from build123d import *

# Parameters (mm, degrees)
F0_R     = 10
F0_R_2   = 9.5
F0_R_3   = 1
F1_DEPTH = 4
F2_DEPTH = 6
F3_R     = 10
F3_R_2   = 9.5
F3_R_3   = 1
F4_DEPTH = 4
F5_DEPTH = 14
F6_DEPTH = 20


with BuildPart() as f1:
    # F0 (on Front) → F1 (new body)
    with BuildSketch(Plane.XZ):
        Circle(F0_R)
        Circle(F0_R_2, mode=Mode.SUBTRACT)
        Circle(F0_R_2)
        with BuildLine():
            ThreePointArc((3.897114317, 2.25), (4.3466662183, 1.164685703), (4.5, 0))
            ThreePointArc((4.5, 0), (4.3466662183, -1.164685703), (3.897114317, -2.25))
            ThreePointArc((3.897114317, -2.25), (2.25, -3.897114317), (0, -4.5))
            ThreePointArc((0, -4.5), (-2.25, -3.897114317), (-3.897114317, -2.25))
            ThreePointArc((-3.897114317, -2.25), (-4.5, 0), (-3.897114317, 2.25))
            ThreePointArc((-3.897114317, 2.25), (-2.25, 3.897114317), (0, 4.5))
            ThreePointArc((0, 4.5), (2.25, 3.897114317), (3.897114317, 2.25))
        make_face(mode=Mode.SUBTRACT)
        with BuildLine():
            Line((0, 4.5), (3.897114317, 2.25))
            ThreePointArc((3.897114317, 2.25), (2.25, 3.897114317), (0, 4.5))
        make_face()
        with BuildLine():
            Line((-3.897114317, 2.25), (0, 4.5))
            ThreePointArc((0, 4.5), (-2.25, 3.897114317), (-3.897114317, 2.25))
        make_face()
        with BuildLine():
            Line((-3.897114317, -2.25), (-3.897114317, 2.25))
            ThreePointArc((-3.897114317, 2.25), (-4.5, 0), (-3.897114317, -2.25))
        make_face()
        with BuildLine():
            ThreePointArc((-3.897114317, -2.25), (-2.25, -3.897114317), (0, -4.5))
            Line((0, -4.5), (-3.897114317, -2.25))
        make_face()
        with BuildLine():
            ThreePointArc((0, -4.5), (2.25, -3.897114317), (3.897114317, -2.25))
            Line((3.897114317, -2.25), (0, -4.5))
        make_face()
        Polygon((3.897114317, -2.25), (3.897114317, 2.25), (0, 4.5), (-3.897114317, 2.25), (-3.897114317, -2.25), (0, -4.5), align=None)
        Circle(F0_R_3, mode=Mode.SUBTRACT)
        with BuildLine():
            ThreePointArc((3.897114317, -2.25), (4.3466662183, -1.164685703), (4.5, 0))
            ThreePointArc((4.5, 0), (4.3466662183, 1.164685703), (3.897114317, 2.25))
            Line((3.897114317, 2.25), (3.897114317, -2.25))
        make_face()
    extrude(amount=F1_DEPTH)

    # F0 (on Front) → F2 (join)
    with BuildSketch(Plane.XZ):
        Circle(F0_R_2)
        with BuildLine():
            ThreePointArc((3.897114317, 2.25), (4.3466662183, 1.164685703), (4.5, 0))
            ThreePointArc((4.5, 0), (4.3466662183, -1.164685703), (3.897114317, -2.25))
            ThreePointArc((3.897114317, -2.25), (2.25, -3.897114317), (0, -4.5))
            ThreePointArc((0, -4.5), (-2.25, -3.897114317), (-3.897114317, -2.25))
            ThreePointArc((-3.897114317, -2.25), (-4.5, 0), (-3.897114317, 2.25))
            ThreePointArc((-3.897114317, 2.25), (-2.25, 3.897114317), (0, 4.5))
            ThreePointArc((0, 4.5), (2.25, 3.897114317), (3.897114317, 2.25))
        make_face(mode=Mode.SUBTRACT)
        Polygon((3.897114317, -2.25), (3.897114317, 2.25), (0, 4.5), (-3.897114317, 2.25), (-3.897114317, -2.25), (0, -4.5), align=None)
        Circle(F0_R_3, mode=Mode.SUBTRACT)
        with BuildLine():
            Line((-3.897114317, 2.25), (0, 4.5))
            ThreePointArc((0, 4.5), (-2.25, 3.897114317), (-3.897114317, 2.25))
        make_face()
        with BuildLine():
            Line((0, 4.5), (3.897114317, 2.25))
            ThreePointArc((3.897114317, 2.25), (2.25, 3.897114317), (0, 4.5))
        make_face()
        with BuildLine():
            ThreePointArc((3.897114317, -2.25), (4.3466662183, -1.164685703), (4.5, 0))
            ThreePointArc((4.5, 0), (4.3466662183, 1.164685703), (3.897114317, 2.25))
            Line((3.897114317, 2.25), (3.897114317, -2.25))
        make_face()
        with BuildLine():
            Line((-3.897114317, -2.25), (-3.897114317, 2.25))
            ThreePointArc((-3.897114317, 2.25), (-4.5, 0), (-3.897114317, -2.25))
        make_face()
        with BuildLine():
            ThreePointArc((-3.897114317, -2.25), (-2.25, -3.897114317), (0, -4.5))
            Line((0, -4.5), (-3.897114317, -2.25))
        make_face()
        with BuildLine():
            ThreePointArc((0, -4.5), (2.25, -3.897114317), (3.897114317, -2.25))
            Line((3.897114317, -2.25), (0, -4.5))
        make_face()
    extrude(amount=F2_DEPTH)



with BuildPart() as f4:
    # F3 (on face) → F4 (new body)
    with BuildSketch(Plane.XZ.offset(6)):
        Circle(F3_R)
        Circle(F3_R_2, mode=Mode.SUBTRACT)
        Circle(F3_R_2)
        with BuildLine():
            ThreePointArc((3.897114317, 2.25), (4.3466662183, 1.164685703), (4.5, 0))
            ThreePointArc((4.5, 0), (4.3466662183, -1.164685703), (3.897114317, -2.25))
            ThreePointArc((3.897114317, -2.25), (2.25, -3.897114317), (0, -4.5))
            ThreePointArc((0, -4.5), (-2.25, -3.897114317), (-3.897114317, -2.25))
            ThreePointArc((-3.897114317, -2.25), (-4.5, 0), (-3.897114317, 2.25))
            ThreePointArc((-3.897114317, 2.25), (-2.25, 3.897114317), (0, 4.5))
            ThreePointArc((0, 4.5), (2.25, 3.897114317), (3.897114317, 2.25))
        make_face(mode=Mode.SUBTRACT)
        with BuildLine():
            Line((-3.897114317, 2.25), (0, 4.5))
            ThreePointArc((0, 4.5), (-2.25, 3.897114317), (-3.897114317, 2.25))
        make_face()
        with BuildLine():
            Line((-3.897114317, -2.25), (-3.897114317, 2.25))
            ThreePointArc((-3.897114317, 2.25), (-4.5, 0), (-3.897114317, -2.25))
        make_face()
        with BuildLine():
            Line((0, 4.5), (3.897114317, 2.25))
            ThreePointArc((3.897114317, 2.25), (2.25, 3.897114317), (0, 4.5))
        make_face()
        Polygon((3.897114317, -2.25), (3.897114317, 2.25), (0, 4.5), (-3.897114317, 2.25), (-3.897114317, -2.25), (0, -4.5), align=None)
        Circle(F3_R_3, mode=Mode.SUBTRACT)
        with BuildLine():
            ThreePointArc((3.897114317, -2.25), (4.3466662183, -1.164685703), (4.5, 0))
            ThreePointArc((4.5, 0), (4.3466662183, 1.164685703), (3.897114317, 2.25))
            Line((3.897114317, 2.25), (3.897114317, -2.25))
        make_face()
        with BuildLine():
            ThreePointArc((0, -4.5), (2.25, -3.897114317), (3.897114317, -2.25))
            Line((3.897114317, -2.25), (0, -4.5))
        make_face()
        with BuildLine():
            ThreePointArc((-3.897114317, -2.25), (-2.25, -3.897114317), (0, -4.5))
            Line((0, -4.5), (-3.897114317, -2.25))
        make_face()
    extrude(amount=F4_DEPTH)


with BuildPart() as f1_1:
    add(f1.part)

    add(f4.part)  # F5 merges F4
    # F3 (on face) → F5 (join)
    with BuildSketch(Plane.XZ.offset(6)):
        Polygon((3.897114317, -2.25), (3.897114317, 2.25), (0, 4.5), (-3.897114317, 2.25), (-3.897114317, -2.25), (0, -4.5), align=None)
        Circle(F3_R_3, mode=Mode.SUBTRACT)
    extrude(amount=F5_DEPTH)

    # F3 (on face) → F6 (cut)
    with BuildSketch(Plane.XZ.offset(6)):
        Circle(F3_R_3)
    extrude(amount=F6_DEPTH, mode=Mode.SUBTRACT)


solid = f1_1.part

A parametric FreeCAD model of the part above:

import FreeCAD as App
import Part
import Sketcher
from FreeCAD import Vector
Q = App.Units.Quantity

doc = App.newDocument("Part")
params = doc.addObject("Spreadsheet::Sheet", "Params")
for row, (alias, value) in enumerate([
    ("sketch1_diameter", "20 mm"),
    ("sketch1_diameter2", "2 mm"),
    ("pad1_length", "4 mm"),
    ("sketch2_diameter", "19 mm"),
    ("sketch2_diameter2", "2 mm"),
    ("pad2_length", "6 mm"),
    ("sketch3_diameter", "20 mm"),
    ("sketch3_diameter2", "2 mm"),
    ("pad3_length", "4 mm"),
    ("sketch4_diameter", "2 mm"),
    ("sketch4_height", "4.5 mm"),
    ("pad4_length", "14 mm"),
    ("sketch5_diameter", "2 mm"),
    ("pocket1_length", "20 mm"),
], start=1):
    params.set(f"A{row}", alias)
    params.set(f"B{row}", "=" + value)
    params.setAlias(f"B{row}", alias)

body = doc.addObject("PartDesign::Body", "Body")

# Sketch on XZ plane
sketch1 = doc.addObject("Sketcher::SketchObject", "Sketch")
body.addObject(sketch1)
sketch1.AttachmentSupport = (doc.XZ_Plane, [""])
sketch1.MapMode = "FlatFace"
sketch1.addGeometry([
    Part.Circle(Vector(0, 0, 0), Vector(0, 0, 1), 10),
    Part.Circle(Vector(0, 0, 0), Vector(0, 0, 1), 1),
], False)
sketch1.addConstraint([
    Sketcher.Constraint("Coincident", 0, 3, -1, 1),
    Sketcher.Constraint("Coincident", 1, 3, -1, 1),
    Sketcher.Constraint("Diameter", 0, 20.0),
    Sketcher.Constraint("Diameter", 1, 2.0),
])
sketch1.setExpression("Constraints[2]", "Params.sketch1_diameter")
sketch1.setExpression("Constraints[3]", "Params.sketch1_diameter2")
pad1 = doc.addObject("PartDesign::Pad", "Pad")
body.addObject(pad1)
pad1.Profile = sketch1
pad1.setExpression("Length", "Params.pad1_length")

# Sketch on XZ plane
sketch2 = doc.addObject("Sketcher::SketchObject", "Sketch001")
body.addObject(sketch2)
sketch2.AttachmentSupport = (doc.XZ_Plane, [""])
sketch2.MapMode = "FlatFace"
sketch2.addGeometry([
    Part.Circle(Vector(0, 0, 0), Vector(0, 0, 1), 9.5),
    Part.Circle(Vector(0, 0, 0), Vector(0, 0, 1), 1),
], False)
sketch2.addConstraint([
    Sketcher.Constraint("Coincident", 0, 3, -1, 1),
    Sketcher.Constraint("Coincident", 1, 3, -1, 1),
    Sketcher.Constraint("Diameter", 0, 19.0),
    Sketcher.Constraint("Diameter", 1, 2.0),
])
sketch2.setExpression("Constraints[2]", "Params.sketch2_diameter")
sketch2.setExpression("Constraints[3]", "Params.sketch2_diameter2")
pad2 = doc.addObject("PartDesign::Pad", "Pad001")
body.addObject(pad2)
pad2.Profile = sketch2
pad2.setExpression("Length", "Params.pad2_length")
body2 = doc.addObject("PartDesign::Body", "Body001")

# Sketch on XZ plane
sketch3 = doc.addObject("Sketcher::SketchObject", "Sketch002")
body2.addObject(sketch3)
sketch3.AttachmentSupport = (doc.getObject("XZ_Plane001"), [""])
sketch3.MapMode = "FlatFace"
sketch3.AttachmentOffset = App.Placement(Vector(0, 0, 6), App.Rotation())
sketch3.addGeometry([
    Part.Circle(Vector(0, 0, 0), Vector(0, 0, 1), 10),
    Part.Circle(Vector(0, 0, 0), Vector(0, 0, 1), 1),
], False)
sketch3.addConstraint([
    Sketcher.Constraint("Coincident", 0, 3, -1, 1),
    Sketcher.Constraint("Coincident", 1, 3, -1, 1),
    Sketcher.Constraint("Diameter", 0, 20.0),
    Sketcher.Constraint("Diameter", 1, 2.0),
])
sketch3.setExpression("Constraints[2]", "Params.sketch3_diameter")
sketch3.setExpression("Constraints[3]", "Params.sketch3_diameter2")
pad3 = doc.addObject("PartDesign::Pad", "Pad002")
body2.addObject(pad3)
pad3.Profile = sketch3
pad3.setExpression("Length", "Params.pad3_length")
doc.recompute()

boolean = doc.addObject("PartDesign::Boolean", "Boolean")
body.addObject(boolean)
boolean.Type = "Fuse"
boolean.addObjects([body2])

# Sketch on XZ plane
sketch4 = doc.addObject("Sketcher::SketchObject", "Sketch003")
body.addObject(sketch4)
sketch4.AttachmentSupport = (doc.XZ_Plane, [""])
sketch4.MapMode = "FlatFace"
sketch4.AttachmentOffset = App.Placement(Vector(0, 0, 6), App.Rotation())
sketch4.addGeometry([
    Part.LineSegment(Vector(3.9, -2.2, 0), Vector(3.9, 2.2, 0)),  # 0
    Part.LineSegment(Vector(3.9, 2.2, 0), Vector(0, 4.5, 0)),  # 1
    Part.LineSegment(Vector(0, 4.5, 0), Vector(-3.9, 2.2, 0)),  # 2
    Part.LineSegment(Vector(-3.9, 2.2, 0), Vector(-3.9, -2.2, 0)),  # 3
    Part.LineSegment(Vector(-3.9, -2.2, 0), Vector(0, -4.5, 0)),  # 4
    Part.LineSegment(Vector(0, -4.5, 0), Vector(3.9, -2.2, 0)),  # 5
    Part.Circle(Vector(0, 0, 0), Vector(0, 0, 1), 1),  # 6
], False)
sketch4.addConstraint([
    Sketcher.Constraint("Coincident", 0, 2, 1, 1),
    Sketcher.Constraint("Coincident", 1, 2, 2, 1),
    Sketcher.Constraint("Coincident", 2, 2, 3, 1),
    Sketcher.Constraint("Coincident", 3, 2, 4, 1),
    Sketcher.Constraint("Coincident", 4, 2, 5, 1),
    Sketcher.Constraint("Coincident", 5, 2, 0, 1),
    Sketcher.Constraint("Vertical", 0),
    Sketcher.Constraint("Vertical", 3),
    Sketcher.Constraint("Coincident", 6, 3, -1, 1),
    Sketcher.Constraint("Symmetric", 0, 2, 3, 2, -1, 1),
    Sketcher.Constraint("Symmetric", 1, 2, 4, 2, -1, 1),
    Sketcher.Constraint("PointOnObject", 1, 2, -2),
    Sketcher.Constraint("Parallel", 2, 5),
    Sketcher.Constraint("Horizontal", 0, 2, 2, 2),
    Sketcher.Constraint("Diameter", 6, 2.0),
    Sketcher.Constraint("Angle", 1, Q("150 deg")),
    Sketcher.Constraint("DistanceY", 0, 1, 0, 2, 4.5),
    Sketcher.Constraint("DistanceY", 4, 2, 1, 2, 9.0),
])
sketch4.setExpression("Constraints[14]", "Params.sketch4_diameter")
sketch4.setExpression("Constraints[16]", "Params.sketch4_height")
pad4 = doc.addObject("PartDesign::Pad", "Pad003")
body.addObject(pad4)
pad4.Profile = sketch4
pad4.setExpression("Length", "Params.pad4_length")

# Sketch on XZ plane
sketch5 = doc.addObject("Sketcher::SketchObject", "Sketch004")
body.addObject(sketch5)
sketch5.AttachmentSupport = (doc.XZ_Plane, [""])
sketch5.MapMode = "FlatFace"
sketch5.AttachmentOffset = App.Placement(Vector(0, 0, 6), App.Rotation())
sketch5.addGeometry(Part.Circle(Vector(0, 0, 0), Vector(0, 0, 1), 1), False)
sketch5.addConstraint([
    Sketcher.Constraint("Coincident", 0, 3, -1, 1),
    Sketcher.Constraint("Diameter", 0, 2.0),
])
sketch5.setExpression("Constraints[1]", "Params.sketch5_diameter")
pocket1 = doc.addObject("PartDesign::Pocket", "Pocket")
body.addObject(pocket1)
pocket1.Profile = sketch5
pocket1.setExpression("Length", "Params.pocket1_length")
pocket1.Reversed = True

doc.recompute()
